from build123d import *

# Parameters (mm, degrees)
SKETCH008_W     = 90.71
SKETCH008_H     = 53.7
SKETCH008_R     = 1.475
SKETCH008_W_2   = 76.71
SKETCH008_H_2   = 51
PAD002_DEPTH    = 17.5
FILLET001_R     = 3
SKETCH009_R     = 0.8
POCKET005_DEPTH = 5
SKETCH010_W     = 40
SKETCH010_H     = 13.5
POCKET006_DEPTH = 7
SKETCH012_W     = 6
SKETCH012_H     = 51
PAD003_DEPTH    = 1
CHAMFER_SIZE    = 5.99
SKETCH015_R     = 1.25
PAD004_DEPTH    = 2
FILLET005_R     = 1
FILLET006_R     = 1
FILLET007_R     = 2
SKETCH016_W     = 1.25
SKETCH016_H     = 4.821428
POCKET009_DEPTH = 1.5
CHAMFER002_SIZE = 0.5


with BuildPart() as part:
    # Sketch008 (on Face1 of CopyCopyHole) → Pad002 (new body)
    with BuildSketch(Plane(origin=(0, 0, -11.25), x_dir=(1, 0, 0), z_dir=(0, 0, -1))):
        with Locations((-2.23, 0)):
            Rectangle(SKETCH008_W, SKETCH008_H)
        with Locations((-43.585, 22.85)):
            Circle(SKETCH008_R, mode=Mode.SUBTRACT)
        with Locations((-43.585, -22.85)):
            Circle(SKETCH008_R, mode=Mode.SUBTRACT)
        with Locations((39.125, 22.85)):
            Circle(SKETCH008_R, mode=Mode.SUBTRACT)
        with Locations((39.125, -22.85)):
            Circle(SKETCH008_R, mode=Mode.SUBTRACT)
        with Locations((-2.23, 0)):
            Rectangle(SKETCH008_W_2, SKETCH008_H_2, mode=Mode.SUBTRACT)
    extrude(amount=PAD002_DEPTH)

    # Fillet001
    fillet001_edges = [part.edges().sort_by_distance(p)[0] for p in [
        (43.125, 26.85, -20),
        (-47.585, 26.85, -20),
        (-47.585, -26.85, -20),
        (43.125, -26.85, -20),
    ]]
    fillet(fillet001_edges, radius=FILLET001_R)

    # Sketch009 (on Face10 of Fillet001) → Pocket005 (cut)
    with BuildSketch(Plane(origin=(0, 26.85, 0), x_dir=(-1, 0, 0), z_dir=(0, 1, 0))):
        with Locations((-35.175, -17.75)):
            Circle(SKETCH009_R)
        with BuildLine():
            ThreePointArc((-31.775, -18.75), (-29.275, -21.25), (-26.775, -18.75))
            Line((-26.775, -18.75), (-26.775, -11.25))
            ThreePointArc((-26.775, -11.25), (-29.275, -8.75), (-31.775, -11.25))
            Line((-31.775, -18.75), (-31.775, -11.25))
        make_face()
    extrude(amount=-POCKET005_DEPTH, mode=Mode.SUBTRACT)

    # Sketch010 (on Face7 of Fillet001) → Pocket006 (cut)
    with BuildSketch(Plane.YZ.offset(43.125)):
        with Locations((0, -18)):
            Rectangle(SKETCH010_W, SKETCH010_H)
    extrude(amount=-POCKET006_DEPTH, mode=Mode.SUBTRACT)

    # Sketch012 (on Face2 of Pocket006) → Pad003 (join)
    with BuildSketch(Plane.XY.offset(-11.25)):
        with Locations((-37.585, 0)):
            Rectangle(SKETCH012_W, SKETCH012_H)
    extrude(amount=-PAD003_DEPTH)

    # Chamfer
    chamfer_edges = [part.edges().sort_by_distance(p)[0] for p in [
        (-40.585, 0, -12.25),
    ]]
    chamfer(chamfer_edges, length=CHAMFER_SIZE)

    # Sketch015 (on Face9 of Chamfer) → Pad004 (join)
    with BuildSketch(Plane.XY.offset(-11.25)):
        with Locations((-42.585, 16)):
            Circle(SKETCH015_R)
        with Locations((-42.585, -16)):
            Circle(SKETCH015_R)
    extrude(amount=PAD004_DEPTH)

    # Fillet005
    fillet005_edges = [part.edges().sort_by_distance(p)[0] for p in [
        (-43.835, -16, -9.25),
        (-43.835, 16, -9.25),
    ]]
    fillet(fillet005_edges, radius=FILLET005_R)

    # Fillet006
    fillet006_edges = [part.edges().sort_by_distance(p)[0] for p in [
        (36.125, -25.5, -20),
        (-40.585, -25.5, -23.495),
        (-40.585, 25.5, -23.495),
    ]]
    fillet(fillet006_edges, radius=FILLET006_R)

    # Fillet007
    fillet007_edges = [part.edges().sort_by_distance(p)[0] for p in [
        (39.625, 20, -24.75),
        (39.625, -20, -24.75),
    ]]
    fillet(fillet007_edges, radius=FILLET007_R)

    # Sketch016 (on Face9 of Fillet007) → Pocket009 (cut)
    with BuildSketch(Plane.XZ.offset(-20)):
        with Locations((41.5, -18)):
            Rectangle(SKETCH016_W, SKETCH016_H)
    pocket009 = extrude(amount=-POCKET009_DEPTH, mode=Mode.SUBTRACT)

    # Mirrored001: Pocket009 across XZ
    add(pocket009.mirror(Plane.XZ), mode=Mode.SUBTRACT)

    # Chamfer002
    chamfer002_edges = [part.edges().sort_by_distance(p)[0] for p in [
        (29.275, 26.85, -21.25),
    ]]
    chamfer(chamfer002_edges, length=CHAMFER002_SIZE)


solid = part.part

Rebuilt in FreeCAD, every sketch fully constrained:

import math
import FreeCAD as App
import Part
import Sketcher

V = App.Vector
Q = App.Units.Quantity


def edges_at(feature, points):
    """Names of the edges that pass closest to the given points."""
    edges = feature.Shape.Edges
    near = lambda p: min(range(len(edges)), key=lambda i: edges[i].distToShape(Part.Vertex(*p))[0])
    return sorted({f"Edge{near(p) + 1}" for p in points})

doc = App.newDocument("Part")
body = doc.addObject("PartDesign::Body", "Body")

sketch1 = body.newObject("Sketcher::SketchObject", "Sketch")
sketch1.AttachmentSupport = (doc.getObject("XY_Plane"), [""])
sketch1.MapMode = "FlatFace"
sketch1.AttachmentOffset = App.Placement(V(0, 0, -11.25), App.Rotation())
sketch1.addGeometry(Part.LineSegment(V(-47.6, -26.9, 0), V(-47.6, 26.9, 0)), False)
sketch1.addGeometry(Part.LineSegment(V(-47.6, 26.9, 0), V(43.1, 26.9, 0)), False)
sketch1.addGeometry(Part.LineSegment(V(43.1, 26.9, 0), V(43.1, -26.9, 0)), False)
sketch1.addGeometry(Part.LineSegment(V(43.1, -26.9, 0), V(-47.6, -26.9, 0)), False)
sketch1.addGeometry(Part.Circle(V(-43.6, 22.9, 0), V(0, 0, 1), 1.5), False)
sketch1.addGeometry(Part.Circle(V(39.1, 22.9, 0), V(0, 0, 1), 1.5), False)
sketch1.addGeometry(Part.Circle(V(-43.6, -22.9, 0), V(0, 0, 1), 1.5), False)
sketch1.addGeometry(Part.LineSegment(V(36.1, 25.5, 0), V(-40.6, 25.5, 0)), False)
sketch1.addGeometry(Part.LineSegment(V(-40.6, 25.5, 0), V(-40.6, -25.5, 0)), False)
sketch1.addGeometry(Part.LineSegment(V(-40.6, -25.5, 0), V(36.1, -25.5, 0)), False)
sketch1.addGeometry(Part.LineSegment(V(36.1, -25.5, 0), V(36.1, 25.5, 0)), False)
sketch1.addGeometry(Part.Circle(V(39.1, -22.9, 0), V(0, 0, 1), 1.5), False)
sketch1.addConstraint(Sketcher.Constraint("Coincident", 0, 2, 1, 1))
sketch1.addConstraint(Sketcher.Constraint("Coincident", 1, 2, 2, 1))
sketch1.addConstraint(Sketcher.Constraint("Coincident", 2, 2, 3, 1))
sketch1.addConstraint(Sketcher.Constraint("Coincident", 3, 2, 0, 1))
sketch1.addConstraint(Sketcher.Constraint("Coincident", 7, 2, 8, 1))
sketch1.addConstraint(Sketcher.Constraint("Coincident", 8, 2, 9, 1))
sketch1.addConstraint(Sketcher.Constraint("Coincident", 9, 2, 10, 1))
sketch1.addConstraint(Sketcher.Constraint("Coincident", 10, 2, 7, 1))
sketch1.addConstraint(Sketcher.Constraint("Vertical", 0))
sketch1.addConstraint(Sketcher.Constraint("Horizontal", 1))
sketch1.addConstraint(Sketcher.Constraint("Vertical", 2))
sketch1.addConstraint(Sketcher.Constraint("Horizontal", 3))
sketch1.addConstraint(Sketcher.Constraint("Horizontal", 7))
sketch1.addConstraint(Sketcher.Constraint("Vertical", 8))
sketch1.addConstraint(Sketcher.Constraint("Horizontal", 9))
sketch1.addConstraint(Sketcher.Constraint("Vertical", 10))
sketch1.addConstraint(Sketcher.Constraint("Equal", 4, 5))
sketch1.addConstraint(Sketcher.Constraint("Equal", 5, 6))
sketch1.addConstraint(Sketcher.Constraint("Equal", 6, 11))
sketch1.addConstraint(Sketcher.Constraint("Symmetric", 4, 3, 6, 3, -1))
sketch1.addConstraint(Sketcher.Constraint("Symmetric", 5, 3, 11, 3, -1))
sketch1.addConstraint(Sketcher.Constraint("Horizontal", 4, 3, 5, 3))
sketch1.addConstraint(Sketcher.Constraint("Diameter", 4, Q("2.95 mm")))
sketch1.addConstraint(Sketcher.Constraint("DistanceY", 8, 2, 8, 1, Q("51 mm")))
sketch1.addConstraint(Sketcher.Constraint("DistanceY", 0, 1, 0, 2, Q("53.7 mm")))
sketch1.addConstraint(Sketcher.Constraint("DistanceX", 0, 2, 4, 3, Q("4 mm")))
sketch1.addConstraint(Sketcher.Constraint("DistanceY", 4, 3, 0, 2, Q("4 mm")))
sketch1.addConstraint(Sketcher.Constraint("DistanceX", 5, 3, 1, 2, Q("4 mm")))
sketch1.addConstraint(Sketcher.Constraint("DistanceY", 2, 2, 11, 3, Q("4 mm")))
sketch1.addConstraint(Sketcher.Constraint("DistanceX", 4, 3, 7, 2, Q("3 mm")))
sketch1.addConstraint(Sketcher.Constraint("DistanceX", 9, 2, 11, 3, Q("3 mm")))
sketch1.addConstraint(Sketcher.Constraint("DistanceX", 1, 1, 1, 2, Q("90.71 mm")))
sketch1.addConstraint(Sketcher.Constraint("DistanceY", -1, 1, 7, 2, Q("25.5 mm")))
sketch1.addConstraint(Sketcher.Constraint("DistanceX", 4, 3, -1, 1, Q("43.585 mm")))
pad1 = body.newObject("PartDesign::Pad", "Pad")
pad1.Profile = sketch1
pad1.Length = 17.5
pad1.Reversed = True
doc.recompute()

fillet = body.newObject("PartDesign::Fillet", "Fillet")
fillet.Base = (pad1, edges_at(pad1, [
    (43.125, 26.85, -20),
    (-47.585, 26.85, -20),
    (-47.585, -26.85, -20),
    (43.125, -26.85, -20),
]))
fillet.Radius = 3

sketch2 = body.newObject("Sketcher::SketchObject", "Sketch001")
sketch2.AttachmentSupport = (doc.getObject("XZ_Plane"), [""])
sketch2.MapMode = "FlatFace"
sketch2.AttachmentOffset = App.Placement(V(0, 0, -26.85), App.Rotation())
sketch2.addGeometry(Part.Circle(V(35.2, -17.8, 0), V(0, 0, 1), 0.8), False)
sketch2.addGeometry(Part.ArcOfCircle(Part.Circle(V(29.3, -18.8, 0), V(0, 0, 1), 2.5), math.radians(180), math.radians(360)), False)
sketch2.addGeometry(Part.LineSegment(V(26.8, -18.8, 0), V(26.8, -11.2, 0)), False)
sketch2.addGeometry(Part.ArcOfCircle(Part.Circle(V(29.3, -11.2, 0), V(0, 0, 1), 2.5), math.radians(0), math.radians(180)), False)
sketch2.addGeometry(Part.LineSegment(V(31.8, -11.2, 0), V(31.8, -18.8, 0)), False)
sketch2.addConstraint(Sketcher.Constraint("Tangent", 1, 1, 2, 1))
sketch2.addConstraint(Sketcher.Constraint("Tangent", 2, 2, 3, 2))
sketch2.addConstraint(Sketcher.Constraint("Tangent", 3, 1, 4, 1))
sketch2.addConstraint(Sketcher.Constraint("Tangent", 4, 2, 1, 2))
sketch2.addConstraint(Sketcher.Constraint("Vertical", 2))
sketch2.addConstraint(Sketcher.Constraint("Vertical", 4))
sketch2.addConstraint(Sketcher.Constraint("Diameter", 0, Q("1.6 mm")))
sketch2.addConstraint(Sketcher.Constraint("Radius", 1, Q("2.5 mm")))
sketch2.addConstraint(Sketcher.Constraint("DistanceY", 2, 1, 2, 2, Q("7.5 mm")))
sketch2.addConstraint(Sketcher.Constraint("DistanceY", 1, 3, 0, 3, Q("1 mm")))
sketch2.addConstraint(Sketcher.Constraint("DistanceX", 1, 3, 0, 3, Q("5.9 mm")))
sketch2.addConstraint(Sketcher.Constraint("DistanceY", 0, 3, -1, 1, Q("17.75 mm")))
sketch2.addConstraint(Sketcher.Constraint("DistanceX", -1, 1, 0, 3, Q("35.175 mm")))
pocket1 = body.newObject("PartDesign::Pocket", "Pocket")
pocket1.Profile = sketch2
pocket1.Length = 5
pocket1.Reversed = True

sketch3 = body.newObject("Sketcher::SketchObject", "Sketch002")
sketch3.AttachmentSupport = (doc.getObject("YZ_Plane"), [""])
sketch3.MapMode = "FlatFace"
sketch3.AttachmentOffset = App.Placement(V(0, 0, 43.125), App.Rotation())
sketch3.addGeometry(Part.LineSegment(V(-20, -11, 0), V(-20, -25, 0)), False)
sketch3.addGeometry(Part.LineSegment(V(-20, -25, 0), V(20, -25, 0)), False)
sketch3.addGeometry(Part.LineSegment(V(20, -25, 0), V(20, -11, 0)), False)
sketch3.addGeometry(Part.LineSegment(V(20, -11, 0), V(-20, -11, 0)), False)
sketch3.addConstraint(Sketcher.Constraint("Coincident", 0, 2, 1, 1))
sketch3.addConstraint(Sketcher.Constraint("Coincident", 1, 2, 2, 1))
sketch3.addConstraint(Sketcher.Constraint("Coincident", 2, 2, 3, 1))
sketch3.addConstraint(Sketcher.Constraint("Coincident", 3, 2, 0, 1))
sketch3.addConstraint(Sketcher.Constraint("Vertical", 0))
sketch3.addConstraint(Sketcher.Constraint("Horizontal", 1))
sketch3.addConstraint(Sketcher.Constraint("Vertical", 2))
sketch3.addConstraint(Sketcher.Constraint("Horizontal", 3))
sketch3.addConstraint(Sketcher.Constraint("DistanceX", 1, 1, 1, 2, Q("40 mm")))
sketch3.addConstraint(Sketcher.Constraint("DistanceY", 0, 2, 0, 1, Q("13.5 mm")))
sketch3.addConstraint(Sketcher.Constraint("DistanceX", 0, 2, -1, 1, Q("20 mm")))
sketch3.addConstraint(Sketcher.Constraint("DistanceY", 0, 2, -1, 1, Q("24.75 mm")))
pocket2 = body.newObject("PartDesign::Pocket", "Pocket001")
pocket2.Profile = sketch3
pocket2.Length = 7

sketch4 = body.newObject("Sketcher::SketchObject", "Sketch003")
sketch4.AttachmentSupport = (doc.getObject("XY_Plane"), [""])
sketch4.MapMode = "FlatFace"
sketch4.AttachmentOffset = App.Placement(V(0, 0, -11.25), App.Rotation())
sketch4.addGeometry(Part.LineSegment(V(-41, 26, 0), V(-41, -26, 0)), False)
sketch4.addGeometry(Part.LineSegment(V(-41, -26, 0), V(-35, -26, 0)), False)
sketch4.addGeometry(Part.LineSegment(V(-35, -26, 0), V(-35, 26, 0)), False)
sketch4.addGeometry(Part.LineSegment(V(-35, 26, 0), V(-41, 26, 0)), False)
sketch4.addConstraint(Sketcher.Constraint("Coincident", 0, 2, 1, 1))
sketch4.addConstraint(Sketcher.Constraint("Coincident", 1, 2, 2, 1))
sketch4.addConstraint(Sketcher.Constraint("Coincident", 2, 2, 3, 1))
sketch4.addConstraint(Sketcher.Constraint("Coincident", 3, 2, 0, 1))
sketch4.addConstraint(Sketcher.Constraint("Vertical", 0))
sketch4.addConstraint(Sketcher.Constraint("Horizontal", 1))
sketch4.addConstraint(Sketcher.Constraint("Vertical", 2))
sketch4.addConstraint(Sketcher.Constraint("Horizontal", 3))
sketch4.addConstraint(Sketcher.Constraint("DistanceX", 1, 1, 1, 2, Q("6 mm")))
sketch4.addConstraint(Sketcher.Constraint("DistanceY", 0, 2, 0, 1, Q("51 mm")))
sketch4.addConstraint(Sketcher.Constraint("DistanceY", 0, 2, -1, 1, Q("25.5 mm")))
sketch4.addConstraint(Sketcher.Constraint("DistanceX", 0, 2, -1, 1, Q("40.585 mm")))
pad2 = body.newObject("PartDesign::Pad", "Pad001")
pad2.Profile = sketch4
pad2.Length = 1
pad2.Reversed = True
doc.recompute()

chamfer = body.newObject("PartDesign::Chamfer", "Chamfer")
chamfer.Base = (pad2, edges_at(pad2, [(-40.585, 0, -12.25)]))
chamfer.Size = 5.99

sketch5 = body.newObject("Sketcher::SketchObject", "Sketch004")
sketch5.AttachmentSupport = (doc.getObject("XY_Plane"), [""])
sketch5.MapMode = "FlatFace"
sketch5.AttachmentOffset = App.Placement(V(0, 0, -11.25), App.Rotation())
sketch5.addGeometry(Part.Circle(V(-42.6, 16, 0), V(0, 0, 1), 1.2), False)
sketch5.addGeometry(Part.Circle(V(-42.6, -16, 0), V(0, 0, 1), 1.2), False)
sketch5.addConstraint(Sketcher.Constraint("Equal", 0, 1))
sketch5.addConstraint(Sketcher.Constraint("Symmetric", 0, 3, 1, 3, -1))
sketch5.addConstraint(Sketcher.Constraint("Diameter", 0, Q("2.5 mm")))
sketch5.addConstraint(Sketcher.Constraint("DistanceY", -1, 1, 0, 3, Q("16 mm")))
sketch5.addConstraint(Sketcher.Constraint("DistanceX", 0, 3, -1, 1, Q("42.585 mm")))
pad3 = body.newObject("PartDesign::Pad", "Pad002")
pad3.Profile = sketch5
pad3.Length = 2
doc.recompute()

fillet2 = body.newObject("PartDesign::Fillet", "Fillet001")
fillet2.Base = (pad3, edges_at(pad3, [(-43.835, -16, -9.25), (-43.835, 16, -9.25)]))
fillet2.Radius = 1
doc.recompute()

fillet3 = body.newObject("PartDesign::Fillet", "Fillet002")
fillet3.Base = (fillet2, edges_at(fillet2, [(36.125, -25.5, -20), (-40.585, -25.5, -23.495), (-40.585, 25.5, -23.495)]))
fillet3.Radius = 1
doc.recompute()

fillet4 = body.newObject("PartDesign::Fillet", "Fillet003")
fillet4.Base = (fillet3, edges_at(fillet3, [(39.625, 20, -24.75), (39.625, -20, -24.75)]))
fillet4.Radius = 2

sketch6 = body.newObject("Sketcher::SketchObject", "Sketch005")
sketch6.AttachmentSupport = (doc.getObject("XZ_Plane"), [""])
sketch6.MapMode = "FlatFace"
sketch6.AttachmentOffset = App.Placement(V(0, 0, -20), App.Rotation())
sketch6.addGeometry(Part.LineSegment(V(40.9, -15.6, 0), V(40.9, -20.4, 0)), False)
sketch6.addGeometry(Part.LineSegment(V(40.9, -20.4, 0), V(42.1, -20.4, 0)), False)
sketch6.addGeometry(Part.LineSegment(V(42.1, -20.4, 0), V(42.1, -15.6, 0)), False)
sketch6.addGeometry(Part.LineSegment(V(42.1, -15.6, 0), V(40.9, -15.6, 0)), False)
sketch6.addConstraint(Sketcher.Constraint("Coincident", 0, 2, 1, 1))
sketch6.addConstraint(Sketcher.Constraint("Coincident", 1, 2, 2, 1))
sketch6.addConstraint(Sketcher.Constraint("Coincident", 2, 2, 3, 1))
sketch6.addConstraint(Sketcher.Constraint("Coincident", 3, 2, 0, 1))
sketch6.addConstraint(Sketcher.Constraint("Vertical", 0))
sketch6.addConstraint(Sketcher.Constraint("Horizontal", 1))
sketch6.addConstraint(Sketcher.Constraint("Vertical", 2))
sketch6.addConstraint(Sketcher.Constraint("Horizontal", 3))
sketch6.addConstraint(Sketcher.Constraint("DistanceX", 1, 1, 1, 2, Q("1.25 mm")))
sketch6.addConstraint(Sketcher.Constraint("DistanceX", -1, 1, 0, 2, Q("40.875 mm")))
sketch6.addConstraint(Sketcher.Constraint("DistanceY", 0, 2, 0, 1, Q("4.821428 mm")))
sketch6.addConstraint(Sketcher.Constraint("DistanceY", 0, 2, -1, 1, Q("20.410714 mm")))
pocket3 = body.newObject("PartDesign::Pocket", "Pocket002")
pocket3.Profile = sketch6
pocket3.Length = 1.5
doc.recompute()

mirrored = body.newObject("PartDesign::Mirrored", "Mirrored")
mirrored.Originals = [pocket3]
mirrored.MirrorPlane = (doc.getObject("XZ_Plane"), [""])
body.Tip = mirrored
doc.recompute()

chamfer2 = body.newObject("PartDesign::Chamfer", "Chamfer001")
chamfer2.Base = (mirrored, edges_at(mirrored, [(29.275, 26.85, -21.25)]))
chamfer2.Size = 0.5

doc.recompute()
